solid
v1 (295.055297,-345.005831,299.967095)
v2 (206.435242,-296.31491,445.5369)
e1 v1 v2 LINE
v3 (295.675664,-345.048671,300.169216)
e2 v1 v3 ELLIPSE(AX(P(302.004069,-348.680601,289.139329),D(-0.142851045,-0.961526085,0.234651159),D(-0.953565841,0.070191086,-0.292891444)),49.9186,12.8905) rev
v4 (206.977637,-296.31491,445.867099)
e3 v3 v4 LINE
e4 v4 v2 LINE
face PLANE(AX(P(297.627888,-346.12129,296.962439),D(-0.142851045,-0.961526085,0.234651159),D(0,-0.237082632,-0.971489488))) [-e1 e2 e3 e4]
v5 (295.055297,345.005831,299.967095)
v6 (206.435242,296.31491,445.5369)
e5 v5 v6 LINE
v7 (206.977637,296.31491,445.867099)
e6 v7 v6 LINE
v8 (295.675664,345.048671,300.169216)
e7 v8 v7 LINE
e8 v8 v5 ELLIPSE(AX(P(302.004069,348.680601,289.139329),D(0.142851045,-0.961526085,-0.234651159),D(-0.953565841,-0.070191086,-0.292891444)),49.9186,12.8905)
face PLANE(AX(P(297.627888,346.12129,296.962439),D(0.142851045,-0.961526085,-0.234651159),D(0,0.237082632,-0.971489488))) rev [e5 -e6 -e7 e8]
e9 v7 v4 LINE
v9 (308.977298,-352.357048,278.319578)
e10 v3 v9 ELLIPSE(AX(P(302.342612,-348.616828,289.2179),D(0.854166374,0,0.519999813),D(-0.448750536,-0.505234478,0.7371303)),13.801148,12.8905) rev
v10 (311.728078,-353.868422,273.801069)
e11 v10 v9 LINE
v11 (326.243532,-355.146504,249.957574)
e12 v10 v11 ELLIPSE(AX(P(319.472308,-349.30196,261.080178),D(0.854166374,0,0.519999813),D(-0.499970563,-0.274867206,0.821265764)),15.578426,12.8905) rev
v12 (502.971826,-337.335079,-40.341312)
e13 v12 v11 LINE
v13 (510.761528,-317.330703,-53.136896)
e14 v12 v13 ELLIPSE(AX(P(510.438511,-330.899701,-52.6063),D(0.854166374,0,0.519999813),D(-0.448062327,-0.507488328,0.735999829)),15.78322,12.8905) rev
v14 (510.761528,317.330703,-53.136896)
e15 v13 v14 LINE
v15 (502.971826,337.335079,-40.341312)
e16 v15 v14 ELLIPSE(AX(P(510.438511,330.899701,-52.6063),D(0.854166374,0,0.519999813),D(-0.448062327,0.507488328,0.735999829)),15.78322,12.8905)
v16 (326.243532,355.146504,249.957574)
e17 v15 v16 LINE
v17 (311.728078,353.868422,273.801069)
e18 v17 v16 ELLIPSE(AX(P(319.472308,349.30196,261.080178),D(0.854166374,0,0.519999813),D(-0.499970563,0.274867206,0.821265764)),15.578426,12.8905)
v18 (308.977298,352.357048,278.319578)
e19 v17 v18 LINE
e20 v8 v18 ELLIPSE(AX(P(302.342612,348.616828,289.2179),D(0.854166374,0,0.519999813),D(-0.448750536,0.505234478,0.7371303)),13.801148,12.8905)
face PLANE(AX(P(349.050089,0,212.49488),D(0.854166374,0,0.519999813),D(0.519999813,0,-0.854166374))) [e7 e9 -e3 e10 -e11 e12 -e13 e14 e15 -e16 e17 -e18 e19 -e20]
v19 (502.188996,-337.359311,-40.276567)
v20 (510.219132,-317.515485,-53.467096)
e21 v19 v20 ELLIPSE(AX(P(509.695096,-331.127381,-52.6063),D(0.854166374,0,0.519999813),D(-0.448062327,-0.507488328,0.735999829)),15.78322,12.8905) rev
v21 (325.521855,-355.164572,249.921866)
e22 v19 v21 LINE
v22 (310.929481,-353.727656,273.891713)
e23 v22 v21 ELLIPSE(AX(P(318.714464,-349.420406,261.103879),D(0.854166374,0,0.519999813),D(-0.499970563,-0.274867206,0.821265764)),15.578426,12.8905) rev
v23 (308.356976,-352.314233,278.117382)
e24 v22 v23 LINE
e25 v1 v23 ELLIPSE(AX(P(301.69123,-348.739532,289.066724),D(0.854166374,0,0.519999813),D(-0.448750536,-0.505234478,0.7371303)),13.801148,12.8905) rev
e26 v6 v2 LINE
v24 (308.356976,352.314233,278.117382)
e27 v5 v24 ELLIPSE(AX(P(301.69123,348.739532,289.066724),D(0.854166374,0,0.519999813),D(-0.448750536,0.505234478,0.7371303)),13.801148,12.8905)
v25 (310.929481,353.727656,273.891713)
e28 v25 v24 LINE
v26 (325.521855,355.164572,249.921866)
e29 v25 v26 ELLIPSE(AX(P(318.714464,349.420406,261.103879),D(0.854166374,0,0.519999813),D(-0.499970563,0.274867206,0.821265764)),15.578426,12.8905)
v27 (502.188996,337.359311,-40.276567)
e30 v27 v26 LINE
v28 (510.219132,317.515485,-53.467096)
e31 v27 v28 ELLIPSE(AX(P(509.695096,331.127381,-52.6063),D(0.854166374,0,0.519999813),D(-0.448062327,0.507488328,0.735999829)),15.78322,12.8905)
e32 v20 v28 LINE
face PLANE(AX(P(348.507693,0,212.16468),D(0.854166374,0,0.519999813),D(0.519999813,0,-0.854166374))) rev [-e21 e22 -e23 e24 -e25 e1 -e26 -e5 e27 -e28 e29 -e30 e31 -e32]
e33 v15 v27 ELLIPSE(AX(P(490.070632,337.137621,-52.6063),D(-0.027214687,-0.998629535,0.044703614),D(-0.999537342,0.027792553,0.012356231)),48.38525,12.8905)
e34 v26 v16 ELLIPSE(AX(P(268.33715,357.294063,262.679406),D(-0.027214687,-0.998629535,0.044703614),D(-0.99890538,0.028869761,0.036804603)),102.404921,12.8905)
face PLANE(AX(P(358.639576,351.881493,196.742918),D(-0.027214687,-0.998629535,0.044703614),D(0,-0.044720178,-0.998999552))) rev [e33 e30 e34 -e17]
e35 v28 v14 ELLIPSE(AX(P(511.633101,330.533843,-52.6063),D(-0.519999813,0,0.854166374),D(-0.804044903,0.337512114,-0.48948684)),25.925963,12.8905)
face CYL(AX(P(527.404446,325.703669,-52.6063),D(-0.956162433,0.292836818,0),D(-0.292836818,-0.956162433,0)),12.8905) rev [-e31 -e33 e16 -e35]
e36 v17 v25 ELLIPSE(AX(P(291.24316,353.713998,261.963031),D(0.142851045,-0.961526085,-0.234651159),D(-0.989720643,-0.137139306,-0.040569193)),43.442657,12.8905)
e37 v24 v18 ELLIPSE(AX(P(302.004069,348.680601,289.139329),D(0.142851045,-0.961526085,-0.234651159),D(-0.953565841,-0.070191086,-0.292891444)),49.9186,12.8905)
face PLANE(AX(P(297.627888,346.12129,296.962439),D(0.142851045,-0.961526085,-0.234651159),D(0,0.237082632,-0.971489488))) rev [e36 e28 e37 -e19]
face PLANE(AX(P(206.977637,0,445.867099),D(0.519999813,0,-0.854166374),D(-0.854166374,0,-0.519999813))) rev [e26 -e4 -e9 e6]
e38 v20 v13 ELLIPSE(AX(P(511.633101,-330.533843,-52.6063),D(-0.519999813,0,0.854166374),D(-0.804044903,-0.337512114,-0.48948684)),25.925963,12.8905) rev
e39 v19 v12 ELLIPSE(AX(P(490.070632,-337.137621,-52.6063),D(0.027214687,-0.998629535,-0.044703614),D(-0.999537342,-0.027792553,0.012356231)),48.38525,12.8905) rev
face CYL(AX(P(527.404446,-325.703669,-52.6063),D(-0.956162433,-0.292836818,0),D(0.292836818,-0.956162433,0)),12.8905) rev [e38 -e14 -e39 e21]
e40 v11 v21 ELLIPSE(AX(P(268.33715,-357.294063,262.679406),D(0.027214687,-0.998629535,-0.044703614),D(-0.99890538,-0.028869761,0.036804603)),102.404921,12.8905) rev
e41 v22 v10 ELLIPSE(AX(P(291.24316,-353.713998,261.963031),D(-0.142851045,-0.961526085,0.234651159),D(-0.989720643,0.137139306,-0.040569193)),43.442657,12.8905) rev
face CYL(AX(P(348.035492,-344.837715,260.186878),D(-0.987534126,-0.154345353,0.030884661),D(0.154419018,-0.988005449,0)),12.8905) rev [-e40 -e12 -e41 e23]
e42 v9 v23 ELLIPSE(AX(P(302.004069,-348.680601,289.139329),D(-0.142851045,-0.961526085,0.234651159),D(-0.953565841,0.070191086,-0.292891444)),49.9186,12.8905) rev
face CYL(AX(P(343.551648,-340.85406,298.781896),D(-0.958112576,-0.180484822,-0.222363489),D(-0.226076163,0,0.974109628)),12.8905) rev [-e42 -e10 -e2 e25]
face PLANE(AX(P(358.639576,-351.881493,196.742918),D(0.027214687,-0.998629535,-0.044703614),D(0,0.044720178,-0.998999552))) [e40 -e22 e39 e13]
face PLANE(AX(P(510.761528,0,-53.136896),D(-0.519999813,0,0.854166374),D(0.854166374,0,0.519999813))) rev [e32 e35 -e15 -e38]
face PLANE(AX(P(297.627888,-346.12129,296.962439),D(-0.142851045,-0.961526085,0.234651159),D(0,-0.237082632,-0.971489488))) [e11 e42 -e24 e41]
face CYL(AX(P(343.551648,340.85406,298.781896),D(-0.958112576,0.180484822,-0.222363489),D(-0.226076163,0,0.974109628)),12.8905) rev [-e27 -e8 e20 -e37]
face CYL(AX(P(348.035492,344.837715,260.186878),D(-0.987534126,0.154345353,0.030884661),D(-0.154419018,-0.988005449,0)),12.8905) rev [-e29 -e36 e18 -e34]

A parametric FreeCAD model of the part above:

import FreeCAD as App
import Part
import Sketcher
from FreeCAD import Vector
Q = App.Units.Quantity

doc = App.newDocument("Part")
params = doc.addObject("Spreadsheet::Sheet", "Params")
for row, (alias, value) in enumerate([
    ("sketch1_height", "26.5 in"),
    ("pad1_length", "0.025 in"),
    ("sketch2_diameter", "1.015 in"),
    ("pocket1_length", "6 in"),
    ("sketch3_diameter", "1.015 in"),
    ("pocket2_length", "6 in"),
    ("sketch4_diameter", "1.015 in"),
    ("pocket3_length", "6 in"),
], start=1):
    params.set(f"A{row}", alias)
    params.set(f"B{row}", "=" + value)
    params.setAlias(f"B{row}", alias)

body = doc.addObject("PartDesign::Body", "Body")

sketch1 = body.newObject("Sketcher::SketchObject", "Sketch")
sketch1.Placement = App.Placement(Vector(348.778891, 0, 212.32978), App.Rotation(Vector(0.519999813, 0, -0.854166374), Vector(0, 1, 0), Vector(0.854166374, 0, 0.519999813), "ZXY"))
sketch1.addGeometry([
    Part.LineSegment(Vector(311, 337, 0), Vector(-64, 356, 0)),
    Part.LineSegment(Vector(-64, 356, 0), Vector(-273, 296, 0)),
    Part.LineSegment(Vector(-273, 296, 0), Vector(-273, -296, 0)),
    Part.LineSegment(Vector(-273, -296, 0), Vector(-64, -356, 0)),
    Part.LineSegment(Vector(-64, -356, 0), Vector(311, -337, 0)),
    Part.LineSegment(Vector(311, -337, 0), Vector(311, 337, 0)),
], False)
sketch1.addConstraint([
    Sketcher.Constraint("Coincident", 0, 2, 1, 1),
    Sketcher.Constraint("Coincident", 1, 2, 2, 1),
    Sketcher.Constraint("Coincident", 2, 2, 3, 1),
    Sketcher.Constraint("Coincident", 3, 2, 4, 1),
    Sketcher.Constraint("Coincident", 4, 2, 5, 1),
    Sketcher.Constraint("Coincident", 5, 2, 0, 1),
    Sketcher.Constraint("Vertical", 2),
    Sketcher.Constraint("Vertical", 5),
    Sketcher.Constraint("Symmetric", 0, 2, 3, 2, -1),
    Sketcher.Constraint("Equal", 1, 3),
    Sketcher.Constraint("Equal", 0, 4),
    Sketcher.Constraint("DistanceY", 5, 1, 5, 2, Q("26.5 in")),
    Sketcher.Constraint("Angle", 0, Q("177 deg")),
    Sketcher.Constraint("DistanceX", 2, 2, 4, 2, Q("23 in")),
    Sketcher.Constraint("DistanceX", 1, 2, 0, 2, Q("8.25 in")),
    Sketcher.Constraint("DistanceY", 2, 2, 2, 1, 592.629819),
    Sketcher.Constraint("DistanceX", 0, 2, -1, 1, 63.666351),
])
sketch1.setExpression("Constraints[11]", "Params.sketch1_height")
pad1 = body.newObject("PartDesign::Pad", "Pad")
pad1.Profile = sketch1
pad1.setExpression("Length", "Params.pad1_length")
pad1.Midplane = True

sketch2 = body.newObject("Sketcher::SketchObject", "Sketch001")
sketch2.Placement = App.Placement(Vector(381.685292, 370.332, -52.6063), App.Rotation(Vector(0, 0, 1), Vector(0.292836818, 0.956162433, 0), Vector(-0.956162433, 0.292836818, 0), "ZXY"))
sketch2.addGeometry(Part.Circle(Vector(0, 0, 0), Vector(0, 0, 1), 13), False)
sketch2.addConstraint([
    Sketcher.Constraint("Coincident", 0, 3, -1, 1),
    Sketcher.Constraint("Diameter", 0, Q("1.015 in")),
])
sketch2.setExpression("Constraints[1]", "Params.sketch2_diameter")
pocket1 = body.newObject("PartDesign::Pocket", "Pocket")
pocket1.Profile = sketch2
pocket1.setExpression("Length", "Params.pocket1_length")

sketch3 = body.newObject("Sketcher::SketchObject", "Sketch002")
sketch3.Placement = App.Placement(Vector(197.535292, 368.359947, 264.8937), App.Rotation(Vector(0.030514213, -0.004769179, 0.999522955), Vector(0.154419018, 0.988005449, 0), Vector(-0.987534126, 0.154345353, 0.030884661), "ZXY"))
sketch3.addGeometry(Part.Circle(Vector(0, 0, 0), Vector(0, 0, 1), 13), False)
sketch3.addConstraint([
    Sketcher.Constraint("Coincident", 0, 3, -1, 1),
    Sketcher.Constraint("Diameter", 0, Q("1.015 in")),
])
sketch3.setExpression("Constraints[1]", "Params.sketch3_diameter")
pocket2 = body.newObject("PartDesign::Pocket", "Pocket001")
pocket2.Profile = sketch3
pocket2.setExpression("Length", "Params.pocket2_length")

sketch4 = body.newObject("Sketcher::SketchObject", "Sketch003")
sketch4.Placement = App.Placement(Vector(197.535292, 368.359947, 264.8937), App.Rotation(Vector(-0.218520162, 0.041163819, 0.974963835), Vector(0.185119505, 0.982716017, 0), Vector(-0.958112576, 0.180484822, -0.222363489), "ZXY"))
sketch4.addGeometry(Part.Circle(Vector(0, 0, 0), Vector(0, 0, 1), 13), False)
sketch4.addConstraint([
    Sketcher.Constraint("Coincident", 0, 3, -1, 1),
    Sketcher.Constraint("Diameter", 0, Q("1.015 in")),
])
sketch4.setExpression("Constraints[1]", "Params.sketch4_diameter")
pocket3 = body.newObject("PartDesign::Pocket", "Pocket002")
pocket3.Profile = sketch4
pocket3.setExpression("Length", "Params.pocket3_length")
doc.recompute()

mirrored = body.newObject("PartDesign::Mirrored", "Mirrored")
mirrored.Originals = [pocket1, pocket2, pocket3]
mirrored.MirrorPlane = (doc.getObject("XZ_Plane"), [""])
body.Tip = mirrored

doc.recompute()
